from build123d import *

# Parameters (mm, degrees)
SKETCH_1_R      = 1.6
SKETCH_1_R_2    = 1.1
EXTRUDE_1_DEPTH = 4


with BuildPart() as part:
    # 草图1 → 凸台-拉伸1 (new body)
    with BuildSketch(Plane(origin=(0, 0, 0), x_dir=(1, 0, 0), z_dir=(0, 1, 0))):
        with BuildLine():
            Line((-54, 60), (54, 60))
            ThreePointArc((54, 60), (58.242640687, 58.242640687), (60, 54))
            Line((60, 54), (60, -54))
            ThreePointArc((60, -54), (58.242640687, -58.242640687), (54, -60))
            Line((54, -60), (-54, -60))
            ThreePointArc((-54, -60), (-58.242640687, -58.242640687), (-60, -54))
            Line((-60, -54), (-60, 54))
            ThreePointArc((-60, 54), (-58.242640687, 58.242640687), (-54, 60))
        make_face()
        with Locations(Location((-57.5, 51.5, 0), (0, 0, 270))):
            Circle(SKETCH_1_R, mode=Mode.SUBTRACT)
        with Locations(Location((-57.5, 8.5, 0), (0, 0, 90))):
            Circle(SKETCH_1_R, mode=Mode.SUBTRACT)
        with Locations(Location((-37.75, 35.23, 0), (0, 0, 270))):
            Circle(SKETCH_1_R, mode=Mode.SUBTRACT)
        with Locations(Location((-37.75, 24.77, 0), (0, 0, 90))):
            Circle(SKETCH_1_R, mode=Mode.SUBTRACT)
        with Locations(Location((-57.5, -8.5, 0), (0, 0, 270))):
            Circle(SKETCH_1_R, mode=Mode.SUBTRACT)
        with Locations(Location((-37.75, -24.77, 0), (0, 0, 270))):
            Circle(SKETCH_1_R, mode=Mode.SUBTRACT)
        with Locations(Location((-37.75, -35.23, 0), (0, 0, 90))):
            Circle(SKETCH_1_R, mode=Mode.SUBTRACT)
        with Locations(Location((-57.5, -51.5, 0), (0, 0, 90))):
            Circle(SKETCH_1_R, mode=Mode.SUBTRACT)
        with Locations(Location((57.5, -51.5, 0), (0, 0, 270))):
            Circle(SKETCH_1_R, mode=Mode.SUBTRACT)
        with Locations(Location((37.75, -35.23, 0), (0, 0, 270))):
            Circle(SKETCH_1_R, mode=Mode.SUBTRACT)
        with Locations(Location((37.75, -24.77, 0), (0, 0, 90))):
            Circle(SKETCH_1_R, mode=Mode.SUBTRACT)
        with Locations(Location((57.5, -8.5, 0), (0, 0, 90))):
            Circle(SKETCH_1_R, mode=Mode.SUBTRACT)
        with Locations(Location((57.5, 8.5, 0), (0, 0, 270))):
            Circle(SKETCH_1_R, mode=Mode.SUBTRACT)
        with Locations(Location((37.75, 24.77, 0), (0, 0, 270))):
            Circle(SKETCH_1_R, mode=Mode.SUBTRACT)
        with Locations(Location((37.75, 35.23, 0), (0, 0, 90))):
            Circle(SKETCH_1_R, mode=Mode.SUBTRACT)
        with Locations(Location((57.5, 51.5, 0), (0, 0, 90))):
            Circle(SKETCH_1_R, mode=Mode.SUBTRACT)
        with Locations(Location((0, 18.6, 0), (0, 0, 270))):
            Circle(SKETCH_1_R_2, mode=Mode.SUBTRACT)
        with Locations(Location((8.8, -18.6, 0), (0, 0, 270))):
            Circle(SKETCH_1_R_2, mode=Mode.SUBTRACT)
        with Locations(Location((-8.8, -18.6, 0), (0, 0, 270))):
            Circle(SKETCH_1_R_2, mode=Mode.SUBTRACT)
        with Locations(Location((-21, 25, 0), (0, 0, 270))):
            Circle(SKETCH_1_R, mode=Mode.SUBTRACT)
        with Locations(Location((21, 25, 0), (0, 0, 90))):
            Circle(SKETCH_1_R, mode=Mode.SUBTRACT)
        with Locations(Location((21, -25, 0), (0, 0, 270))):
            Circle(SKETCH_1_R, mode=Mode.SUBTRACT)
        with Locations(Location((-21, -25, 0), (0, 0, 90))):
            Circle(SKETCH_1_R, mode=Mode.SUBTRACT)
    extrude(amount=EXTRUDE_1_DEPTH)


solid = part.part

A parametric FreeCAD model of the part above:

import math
import FreeCAD as App
import Part
import Sketcher

V = App.Vector
Q = App.Units.Quantity

doc = App.newDocument("Part")
body = doc.addObject("PartDesign::Body", "Body")

sketch1 = body.newObject("Sketcher::SketchObject", "Sketch")
sketch1.AttachmentSupport = (doc.getObject("XZ_Plane"), [""])
sketch1.MapMode = "FlatFace"
sketch1.addGeometry([
    Part.LineSegment(V(54, -60, 0), V(-54, -60, 0)),
    Part.ArcOfCircle(Part.Circle(V(-54, -54, 0), V(0, 0, 1), 6), math.radians(180), math.radians(270)),
    Part.LineSegment(V(-60, -54, 0), V(-60, 54, 0)),
    Part.ArcOfCircle(Part.Circle(V(-54, 54, 0), V(0, 0, 1), 6), math.radians(90), math.radians(180)),
    Part.LineSegment(V(-54, 60, 0), V(54, 60, 0)),
    Part.ArcOfCircle(Part.Circle(V(54, 54, 0), V(0, 0, 1), 6), math.radians(0), math.radians(90)),
    Part.LineSegment(V(60, 54, 0), V(60, -54, 0)),
    Part.ArcOfCircle(Part.Circle(V(54, -54, 0), V(0, 0, 1), 6), math.radians(-90), math.radians(0)),
    Part.Circle(V(57.5, 51.5, 0), V(0, 0, 1), 1.6),
    Part.Circle(V(37.8, 35.2, 0), V(0, 0, 1), 1.6),
    Part.Circle(V(37.8, 24.8, 0), V(0, 0, 1), 1.6),
    Part.Circle(V(57.5, 8.5, 0), V(0, 0, 1), 1.6),
    Part.Circle(V(21, 25, 0), V(0, 0, 1), 1.6),
    Part.Circle(V(8.8, 18.6, 0), V(0, 0, 1), 1.1),
    Part.Circle(V(-57.5, 51.5, 0), V(0, 0, 1), 1.6),
    Part.Circle(V(-37.8, 35.2, 0), V(0, 0, 1), 1.6),
    Part.Circle(V(-8.8, 18.6, 0), V(0, 0, 1), 1.1),
    Part.Circle(V(-21, 25, 0), V(0, 0, 1), 1.6),
    Part.Circle(V(-37.8, 24.8, 0), V(0, 0, 1), 1.6),
    Part.Circle(V(-57.5, 8.5, 0), V(0, 0, 1), 1.6),
    Part.Circle(V(57.5, -8.5, 0), V(0, 0, 1), 1.6),
    Part.Circle(V(37.8, -24.8, 0), V(0, 0, 1), 1.6),
    Part.Circle(V(21, -25, 0), V(0, 0, 1), 1.6),
    Part.Circle(V(37.8, -35.2, 0), V(0, 0, 1), 1.6),
    Part.Circle(V(57.5, -51.5, 0), V(0, 0, 1), 1.6),
    Part.Circle(V(0, -18.6, 0), V(0, 0, 1), 1.1),
    Part.Circle(V(-21, -25, 0), V(0, 0, 1), 1.6),
    Part.Circle(V(-57.5, -8.5, 0), V(0, 0, 1), 1.6),
    Part.Circle(V(-37.8, -24.8, 0), V(0, 0, 1), 1.6),
    Part.Circle(V(-37.8, -35.2, 0), V(0, 0, 1), 1.6),
    Part.Circle(V(-57.5, -51.5, 0), V(0, 0, 1), 1.6),
], False)
sketch1.addConstraint([
    Sketcher.Constraint("Tangent", 0, 2, 1, 2),
    Sketcher.Constraint("Tangent", 1, 1, 2, 1),
    Sketcher.Constraint("Tangent", 2, 2, 3, 2),
    Sketcher.Constraint("Tangent", 3, 1, 4, 1),
    Sketcher.Constraint("Tangent", 4, 2, 5, 2),
    Sketcher.Constraint("Tangent", 5, 1, 6, 1),
    Sketcher.Constraint("Tangent", 6, 2, 7, 2),
    Sketcher.Constraint("Tangent", 7, 1, 0, 1),
    Sketcher.Constraint("Horizontal", 0),
    Sketcher.Constraint("Vertical", 2),
    Sketcher.Constraint("Horizontal", 4),
    Sketcher.Constraint("Vertical", 6),
    Sketcher.Constraint("Equal", 1, 3),
    Sketcher.Constraint("Equal", 3, 5),
    Sketcher.Constraint("Equal", 5, 7),
    Sketcher.Constraint("Equal", 8, 9),
    Sketcher.Constraint("Equal", 9, 10),
    Sketcher.Constraint("Equal", 10, 11),
    Sketcher.Constraint("Equal", 11, 12),
    Sketcher.Constraint("Equal", 12, 14),
    Sketcher.Constraint("Equal", 14, 15),
    Sketcher.Constraint("Equal", 13, 16),
    Sketcher.Constraint("Equal", 15, 17),
    Sketcher.Constraint("Equal", 17, 18),
    Sketcher.Constraint("Equal", 18, 19),
    Sketcher.Constraint("Equal", 19, 20),
    Sketcher.Constraint("Equal", 20, 21),
    Sketcher.Constraint("Equal", 21, 22),
    Sketcher.Constraint("Equal", 22, 23),
    Sketcher.Constraint("Equal", 23, 24),
    Sketcher.Constraint("Equal", 16, 25),
    Sketcher.Constraint("Equal", 24, 26),
    Sketcher.Constraint("Equal", 26, 27),
    Sketcher.Constraint("Equal", 27, 28),
    Sketcher.Constraint("Equal", 28, 29),
    Sketcher.Constraint("Equal", 29, 30),
    Sketcher.Constraint("Symmetric", 1, 3, 5, 3, -1, 1),
    Sketcher.Constraint("Symmetric", 19, 3, 20, 3, -1, 1),
    Sketcher.Constraint("Symmetric", 18, 3, 21, 3, -1, 1),
    Sketcher.Constraint("Symmetric", 17, 3, 22, 3, -1, 1),
    Sketcher.Constraint("Symmetric", 15, 3, 23, 3, -1, 1),
    Sketcher.Constraint("Symmetric", 14, 3, 24, 3, -1, 1),
    Sketcher.Constraint("Symmetric", 12, 3, 26, 3, -1, 1),
    Sketcher.Constraint("Symmetric", 11, 3, 27, 3, -1, 1),
    Sketcher.Constraint("Symmetric", 10, 3, 28, 3, -1, 1),
    Sketcher.Constraint("Symmetric", 9, 3, 29, 3, -1, 1),
    Sketcher.Constraint("Symmetric", 8, 3, 30, 3, -1, 1),
    Sketcher.Constraint("Symmetric", 8, 3, 14, 3, -2),
    Sketcher.Constraint("Symmetric", 9, 3, 15, 3, -2),
    Sketcher.Constraint("Symmetric", 13, 3, 16, 3, -2),
    Sketcher.Constraint("Symmetric", 12, 3, 17, 3, -2),
    Sketcher.Constraint("Symmetric", 10, 3, 18, 3, -2),
    Sketcher.Constraint("Symmetric", 11, 3, 19, 3, -2),
    Sketcher.Constraint("PointOnObject", 25, 3, -2),
    Sketcher.Constraint("Vertical", 9, 3, 10, 3),
    Sketcher.Constraint("Vertical", 8, 3, 11, 3),
    Sketcher.Constraint("Equal", 4, 2),
    Sketcher.Constraint("Radius", 1, Q("6 mm")),
    Sketcher.Constraint("Diameter", 8, Q("3.2 mm")),
    Sketcher.Constraint("Diameter", 13, Q("2.2 mm")),
    Sketcher.Constraint("DistanceX", 0, 2, 0, 1, Q("108 mm")),
    Sketcher.Constraint("DistanceX", -1, 1, 12, 3, Q("21 mm")),
    Sketcher.Constraint("DistanceY", -1, 1, 12, 3, Q("25 mm")),
    Sketcher.Constraint("DistanceY", 11, 3, 8, 3, Q("43 mm")),
    Sketcher.Constraint("DistanceY", 20, 3, 11, 3, Q("17 mm")),
    Sketcher.Constraint("DistanceX", -1, 1, 8, 3, Q("57.5 mm")),
    Sketcher.Constraint("DistanceX", -1, 1, 13, 3, Q("8.8 mm")),
    Sketcher.Constraint("DistanceY", -1, 1, 13, 3, Q("18.6 mm")),
    Sketcher.Constraint("DistanceY", 25, 3, -1, 1, Q("18.6 mm")),
    Sketcher.Constraint("DistanceX", 15, 3, 9, 3, Q("75.5 mm")),
    Sketcher.Constraint("DistanceY", -1, 1, 9, 3, Q("35.23 mm")),
    Sketcher.Constraint("DistanceY", -1, 1, 10, 3, Q("24.77 mm")),
])
pad1 = body.newObject("PartDesign::Pad", "Pad")
pad1.Profile = sketch1
pad1.Length = 4
pad1.Reversed = True

doc.recompute()
